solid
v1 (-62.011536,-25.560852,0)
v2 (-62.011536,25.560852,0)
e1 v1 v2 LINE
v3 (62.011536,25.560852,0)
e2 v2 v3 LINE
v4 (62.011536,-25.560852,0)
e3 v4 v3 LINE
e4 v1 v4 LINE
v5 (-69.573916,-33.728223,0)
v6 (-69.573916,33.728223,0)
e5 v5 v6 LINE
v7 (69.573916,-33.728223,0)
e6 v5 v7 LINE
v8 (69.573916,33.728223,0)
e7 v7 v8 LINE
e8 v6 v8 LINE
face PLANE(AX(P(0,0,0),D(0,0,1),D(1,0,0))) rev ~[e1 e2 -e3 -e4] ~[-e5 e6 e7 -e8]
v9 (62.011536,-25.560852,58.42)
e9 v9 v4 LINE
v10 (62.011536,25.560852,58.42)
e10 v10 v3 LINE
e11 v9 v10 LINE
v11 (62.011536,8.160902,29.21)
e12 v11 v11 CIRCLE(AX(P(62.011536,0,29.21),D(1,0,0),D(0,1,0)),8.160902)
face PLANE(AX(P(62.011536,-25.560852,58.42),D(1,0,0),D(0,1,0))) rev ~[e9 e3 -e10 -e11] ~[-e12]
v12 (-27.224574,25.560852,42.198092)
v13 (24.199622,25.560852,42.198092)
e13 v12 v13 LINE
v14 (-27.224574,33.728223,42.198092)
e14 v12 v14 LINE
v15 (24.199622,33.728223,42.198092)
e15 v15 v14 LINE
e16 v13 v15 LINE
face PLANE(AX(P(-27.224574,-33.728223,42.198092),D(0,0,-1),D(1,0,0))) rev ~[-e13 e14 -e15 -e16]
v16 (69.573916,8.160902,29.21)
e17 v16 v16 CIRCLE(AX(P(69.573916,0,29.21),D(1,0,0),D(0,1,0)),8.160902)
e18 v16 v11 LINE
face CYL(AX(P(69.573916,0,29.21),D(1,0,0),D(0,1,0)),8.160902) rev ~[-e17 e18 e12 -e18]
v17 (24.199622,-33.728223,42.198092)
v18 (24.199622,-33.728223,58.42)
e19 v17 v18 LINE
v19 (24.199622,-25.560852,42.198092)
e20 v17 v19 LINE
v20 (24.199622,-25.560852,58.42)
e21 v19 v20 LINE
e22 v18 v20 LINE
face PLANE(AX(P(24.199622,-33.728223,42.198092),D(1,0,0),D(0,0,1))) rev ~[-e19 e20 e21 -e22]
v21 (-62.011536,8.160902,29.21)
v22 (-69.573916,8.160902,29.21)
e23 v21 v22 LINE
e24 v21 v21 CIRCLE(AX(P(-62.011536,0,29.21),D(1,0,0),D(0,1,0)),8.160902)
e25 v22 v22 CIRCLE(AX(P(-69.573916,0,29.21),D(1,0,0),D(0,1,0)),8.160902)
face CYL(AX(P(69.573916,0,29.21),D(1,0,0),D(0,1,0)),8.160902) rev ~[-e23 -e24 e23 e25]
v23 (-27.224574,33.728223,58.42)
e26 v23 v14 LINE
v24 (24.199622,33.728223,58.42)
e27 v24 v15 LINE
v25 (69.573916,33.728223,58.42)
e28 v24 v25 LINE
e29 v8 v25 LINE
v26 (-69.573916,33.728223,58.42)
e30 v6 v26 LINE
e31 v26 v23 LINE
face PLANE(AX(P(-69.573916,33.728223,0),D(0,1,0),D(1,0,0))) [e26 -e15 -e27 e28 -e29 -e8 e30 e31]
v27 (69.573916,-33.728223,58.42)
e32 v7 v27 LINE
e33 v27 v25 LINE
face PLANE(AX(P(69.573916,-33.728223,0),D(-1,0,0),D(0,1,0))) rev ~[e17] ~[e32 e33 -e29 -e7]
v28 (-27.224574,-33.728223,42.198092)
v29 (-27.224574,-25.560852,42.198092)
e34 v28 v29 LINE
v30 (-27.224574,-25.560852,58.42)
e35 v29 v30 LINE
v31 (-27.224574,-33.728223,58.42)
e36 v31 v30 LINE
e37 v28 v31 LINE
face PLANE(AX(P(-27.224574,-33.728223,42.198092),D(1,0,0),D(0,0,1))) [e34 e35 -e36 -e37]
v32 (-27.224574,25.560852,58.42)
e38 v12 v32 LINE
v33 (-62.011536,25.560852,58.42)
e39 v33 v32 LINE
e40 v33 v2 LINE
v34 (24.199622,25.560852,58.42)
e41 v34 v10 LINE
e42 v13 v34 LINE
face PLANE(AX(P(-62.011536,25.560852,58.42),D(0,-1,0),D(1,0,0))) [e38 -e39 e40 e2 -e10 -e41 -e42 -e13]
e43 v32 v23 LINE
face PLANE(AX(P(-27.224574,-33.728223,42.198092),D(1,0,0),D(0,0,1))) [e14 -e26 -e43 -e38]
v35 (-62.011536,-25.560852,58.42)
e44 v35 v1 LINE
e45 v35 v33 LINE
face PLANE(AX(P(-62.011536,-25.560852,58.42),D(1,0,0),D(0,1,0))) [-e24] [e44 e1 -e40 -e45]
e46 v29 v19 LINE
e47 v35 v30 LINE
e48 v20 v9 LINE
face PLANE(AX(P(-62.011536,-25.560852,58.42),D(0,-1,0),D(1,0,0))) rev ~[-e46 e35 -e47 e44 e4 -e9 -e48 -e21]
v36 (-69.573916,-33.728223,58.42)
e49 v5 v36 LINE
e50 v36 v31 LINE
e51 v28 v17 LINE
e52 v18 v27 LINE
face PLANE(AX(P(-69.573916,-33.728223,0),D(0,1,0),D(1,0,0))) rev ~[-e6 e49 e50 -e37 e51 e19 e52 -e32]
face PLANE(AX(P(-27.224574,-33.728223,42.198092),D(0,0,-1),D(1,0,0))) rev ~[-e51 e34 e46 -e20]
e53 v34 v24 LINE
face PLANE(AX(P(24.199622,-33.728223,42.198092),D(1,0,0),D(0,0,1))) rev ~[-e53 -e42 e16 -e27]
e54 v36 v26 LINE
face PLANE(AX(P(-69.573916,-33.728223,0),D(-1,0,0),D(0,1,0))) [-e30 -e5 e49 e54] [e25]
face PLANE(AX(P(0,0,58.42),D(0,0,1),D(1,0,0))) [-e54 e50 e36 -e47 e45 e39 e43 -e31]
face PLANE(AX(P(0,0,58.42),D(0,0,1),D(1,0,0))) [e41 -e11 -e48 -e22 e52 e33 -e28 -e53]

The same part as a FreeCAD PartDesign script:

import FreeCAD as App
import Part
import Sketcher
from FreeCAD import Vector
Q = App.Units.Quantity


def add_polygon(sketch, points):
    """Adds a closed chain of lines whose ends are joined by coincident constraints."""
    first, n = sketch.GeometryCount, len(points)
    for a, b in zip(points, points[1:] + points[:1]):
        sketch.addGeometry(Part.LineSegment(App.Vector(*a, 0), App.Vector(*b, 0)), False)
    for i in range(n):
        sketch.addConstraint(Sketcher.Constraint("Coincident", first + i, 2, first + (i + 1) % n, 1))

doc = App.newDocument("Part")
params = doc.addObject("Spreadsheet::Sheet", "Params")
for row, (alias, value) in enumerate([
    ("pad1_length", "2.3 in"),
], start=1):
    params.set(f"A{row}", alias)
    params.set(f"B{row}", "=" + value)
    params.setAlias(f"B{row}", alias)

body = doc.addObject("PartDesign::Body", "Body")

# Sketch on XY plane
sketch1 = body.newObject("Sketcher::SketchObject", "Sketch")
sketch1.AttachmentSupport = (doc.getObject("XY_Plane"), [""])
sketch1.MapMode = "FlatFace"
add_polygon(sketch1, [(-70, 34), (-70, -34), (70, -34), (70, 34)])  # lines 0-3
sketch1.addConstraint([
    Sketcher.Constraint("Vertical", 0),
    Sketcher.Constraint("Horizontal", 1),
    Sketcher.Constraint("Vertical", 2),
    Sketcher.Constraint("Horizontal", 3),
    Sketcher.Constraint("Symmetric", 0, 2, 2, 2, -1, 1),
    Sketcher.Constraint("DistanceX", 1, 1, 1, 2, 139.147832),
    Sketcher.Constraint("DistanceY", 0, 2, 0, 1, 67.456446),
])
pad1 = body.newObject("PartDesign::Pad", "Pad")
pad1.Profile = sketch1
pad1.setExpression("Length", "Params.pad1_length")

# Sketch on YZ plane
sketch2 = body.newObject("Sketcher::SketchObject", "Sketch001")
sketch2.AttachmentSupport = (doc.getObject("YZ_Plane"), [""])
sketch2.MapMode = "FlatFace"
sketch2.AttachmentOffset = App.Placement(Vector(0, 0, 69.573916), App.Rotation())
sketch2.addGeometry(Part.Circle(Vector(0, 29, 0), Vector(0, 0, 1), 8), False)
sketch2.addConstraint([
    Sketcher.Constraint("PointOnObject", 0, 3, -2),
    Sketcher.Constraint("DistanceY", -1, 1, 0, 3, Q("1.15 in")),
    Sketcher.Constraint("Diameter", 0, 16.321804),
])
pocket1 = body.newObject("PartDesign::Pocket", "Pocket")
pocket1.Profile = sketch2
pocket1.Type = "ThroughAll"

# Sketch on XY plane
sketch3 = body.newObject("Sketcher::SketchObject", "Sketch002")
sketch3.AttachmentSupport = (doc.getObject("XY_Plane"), [""])
sketch3.MapMode = "FlatFace"
sketch3.AttachmentOffset = App.Placement(Vector(0, 0, 2.3 * 25.4), App.Rotation())
add_polygon(sketch3, [(-62, 26), (-62, -26), (62, -26), (62, 26)])  # lines 0-3
sketch3.addConstraint([
    Sketcher.Constraint("Vertical", 0),
    Sketcher.Constraint("Horizontal", 1),
    Sketcher.Constraint("Vertical", 2),
    Sketcher.Constraint("Horizontal", 3),
    Sketcher.Constraint("Symmetric", 0, 2, 2, 2, -1, 1),
    Sketcher.Constraint("DistanceX", 1, 1, 1, 2, 124.023072),
    Sketcher.Constraint("DistanceY", 0, 2, 0, 1, 51.121704),
])
pocket2 = body.newObject("PartDesign::Pocket", "Pocket001")
pocket2.Profile = sketch3
pocket2.Type = "ThroughAll"

# Sketch on XZ plane
sketch4 = body.newObject("Sketcher::SketchObject", "Sketch003")
sketch4.AttachmentSupport = (doc.getObject("XZ_Plane"), [""])
sketch4.MapMode = "FlatFace"
sketch4.AttachmentOffset = App.Placement(Vector(0, 0, 33.728223), App.Rotation())
add_polygon(sketch4, [(-27, 58), (-27, 42), (24, 42), (24, 58)])  # lines 0-3
sketch4.addConstraint([
    Sketcher.Constraint("Vertical", 0),
    Sketcher.Constraint("Horizontal", 1),
    Sketcher.Constraint("Vertical", 2),
    Sketcher.Constraint("Horizontal", 3),
    Sketcher.Constraint("DistanceY", -1, 1, 2, 2, Q("2.3 in")),
    Sketcher.Constraint("DistanceX", 1, 1, 1, 2, 51.424196),
    Sketcher.Constraint("DistanceY", 0, 2, 0, 1, 16.221908),
    Sketcher.Constraint("DistanceX", 0, 2, -1, 1, 27.224574),
])
pocket3 = body.newObject("PartDesign::Pocket", "Pocket002")
pocket3.Profile = sketch4
pocket3.Type = "ThroughAll"

doc.recompute()
